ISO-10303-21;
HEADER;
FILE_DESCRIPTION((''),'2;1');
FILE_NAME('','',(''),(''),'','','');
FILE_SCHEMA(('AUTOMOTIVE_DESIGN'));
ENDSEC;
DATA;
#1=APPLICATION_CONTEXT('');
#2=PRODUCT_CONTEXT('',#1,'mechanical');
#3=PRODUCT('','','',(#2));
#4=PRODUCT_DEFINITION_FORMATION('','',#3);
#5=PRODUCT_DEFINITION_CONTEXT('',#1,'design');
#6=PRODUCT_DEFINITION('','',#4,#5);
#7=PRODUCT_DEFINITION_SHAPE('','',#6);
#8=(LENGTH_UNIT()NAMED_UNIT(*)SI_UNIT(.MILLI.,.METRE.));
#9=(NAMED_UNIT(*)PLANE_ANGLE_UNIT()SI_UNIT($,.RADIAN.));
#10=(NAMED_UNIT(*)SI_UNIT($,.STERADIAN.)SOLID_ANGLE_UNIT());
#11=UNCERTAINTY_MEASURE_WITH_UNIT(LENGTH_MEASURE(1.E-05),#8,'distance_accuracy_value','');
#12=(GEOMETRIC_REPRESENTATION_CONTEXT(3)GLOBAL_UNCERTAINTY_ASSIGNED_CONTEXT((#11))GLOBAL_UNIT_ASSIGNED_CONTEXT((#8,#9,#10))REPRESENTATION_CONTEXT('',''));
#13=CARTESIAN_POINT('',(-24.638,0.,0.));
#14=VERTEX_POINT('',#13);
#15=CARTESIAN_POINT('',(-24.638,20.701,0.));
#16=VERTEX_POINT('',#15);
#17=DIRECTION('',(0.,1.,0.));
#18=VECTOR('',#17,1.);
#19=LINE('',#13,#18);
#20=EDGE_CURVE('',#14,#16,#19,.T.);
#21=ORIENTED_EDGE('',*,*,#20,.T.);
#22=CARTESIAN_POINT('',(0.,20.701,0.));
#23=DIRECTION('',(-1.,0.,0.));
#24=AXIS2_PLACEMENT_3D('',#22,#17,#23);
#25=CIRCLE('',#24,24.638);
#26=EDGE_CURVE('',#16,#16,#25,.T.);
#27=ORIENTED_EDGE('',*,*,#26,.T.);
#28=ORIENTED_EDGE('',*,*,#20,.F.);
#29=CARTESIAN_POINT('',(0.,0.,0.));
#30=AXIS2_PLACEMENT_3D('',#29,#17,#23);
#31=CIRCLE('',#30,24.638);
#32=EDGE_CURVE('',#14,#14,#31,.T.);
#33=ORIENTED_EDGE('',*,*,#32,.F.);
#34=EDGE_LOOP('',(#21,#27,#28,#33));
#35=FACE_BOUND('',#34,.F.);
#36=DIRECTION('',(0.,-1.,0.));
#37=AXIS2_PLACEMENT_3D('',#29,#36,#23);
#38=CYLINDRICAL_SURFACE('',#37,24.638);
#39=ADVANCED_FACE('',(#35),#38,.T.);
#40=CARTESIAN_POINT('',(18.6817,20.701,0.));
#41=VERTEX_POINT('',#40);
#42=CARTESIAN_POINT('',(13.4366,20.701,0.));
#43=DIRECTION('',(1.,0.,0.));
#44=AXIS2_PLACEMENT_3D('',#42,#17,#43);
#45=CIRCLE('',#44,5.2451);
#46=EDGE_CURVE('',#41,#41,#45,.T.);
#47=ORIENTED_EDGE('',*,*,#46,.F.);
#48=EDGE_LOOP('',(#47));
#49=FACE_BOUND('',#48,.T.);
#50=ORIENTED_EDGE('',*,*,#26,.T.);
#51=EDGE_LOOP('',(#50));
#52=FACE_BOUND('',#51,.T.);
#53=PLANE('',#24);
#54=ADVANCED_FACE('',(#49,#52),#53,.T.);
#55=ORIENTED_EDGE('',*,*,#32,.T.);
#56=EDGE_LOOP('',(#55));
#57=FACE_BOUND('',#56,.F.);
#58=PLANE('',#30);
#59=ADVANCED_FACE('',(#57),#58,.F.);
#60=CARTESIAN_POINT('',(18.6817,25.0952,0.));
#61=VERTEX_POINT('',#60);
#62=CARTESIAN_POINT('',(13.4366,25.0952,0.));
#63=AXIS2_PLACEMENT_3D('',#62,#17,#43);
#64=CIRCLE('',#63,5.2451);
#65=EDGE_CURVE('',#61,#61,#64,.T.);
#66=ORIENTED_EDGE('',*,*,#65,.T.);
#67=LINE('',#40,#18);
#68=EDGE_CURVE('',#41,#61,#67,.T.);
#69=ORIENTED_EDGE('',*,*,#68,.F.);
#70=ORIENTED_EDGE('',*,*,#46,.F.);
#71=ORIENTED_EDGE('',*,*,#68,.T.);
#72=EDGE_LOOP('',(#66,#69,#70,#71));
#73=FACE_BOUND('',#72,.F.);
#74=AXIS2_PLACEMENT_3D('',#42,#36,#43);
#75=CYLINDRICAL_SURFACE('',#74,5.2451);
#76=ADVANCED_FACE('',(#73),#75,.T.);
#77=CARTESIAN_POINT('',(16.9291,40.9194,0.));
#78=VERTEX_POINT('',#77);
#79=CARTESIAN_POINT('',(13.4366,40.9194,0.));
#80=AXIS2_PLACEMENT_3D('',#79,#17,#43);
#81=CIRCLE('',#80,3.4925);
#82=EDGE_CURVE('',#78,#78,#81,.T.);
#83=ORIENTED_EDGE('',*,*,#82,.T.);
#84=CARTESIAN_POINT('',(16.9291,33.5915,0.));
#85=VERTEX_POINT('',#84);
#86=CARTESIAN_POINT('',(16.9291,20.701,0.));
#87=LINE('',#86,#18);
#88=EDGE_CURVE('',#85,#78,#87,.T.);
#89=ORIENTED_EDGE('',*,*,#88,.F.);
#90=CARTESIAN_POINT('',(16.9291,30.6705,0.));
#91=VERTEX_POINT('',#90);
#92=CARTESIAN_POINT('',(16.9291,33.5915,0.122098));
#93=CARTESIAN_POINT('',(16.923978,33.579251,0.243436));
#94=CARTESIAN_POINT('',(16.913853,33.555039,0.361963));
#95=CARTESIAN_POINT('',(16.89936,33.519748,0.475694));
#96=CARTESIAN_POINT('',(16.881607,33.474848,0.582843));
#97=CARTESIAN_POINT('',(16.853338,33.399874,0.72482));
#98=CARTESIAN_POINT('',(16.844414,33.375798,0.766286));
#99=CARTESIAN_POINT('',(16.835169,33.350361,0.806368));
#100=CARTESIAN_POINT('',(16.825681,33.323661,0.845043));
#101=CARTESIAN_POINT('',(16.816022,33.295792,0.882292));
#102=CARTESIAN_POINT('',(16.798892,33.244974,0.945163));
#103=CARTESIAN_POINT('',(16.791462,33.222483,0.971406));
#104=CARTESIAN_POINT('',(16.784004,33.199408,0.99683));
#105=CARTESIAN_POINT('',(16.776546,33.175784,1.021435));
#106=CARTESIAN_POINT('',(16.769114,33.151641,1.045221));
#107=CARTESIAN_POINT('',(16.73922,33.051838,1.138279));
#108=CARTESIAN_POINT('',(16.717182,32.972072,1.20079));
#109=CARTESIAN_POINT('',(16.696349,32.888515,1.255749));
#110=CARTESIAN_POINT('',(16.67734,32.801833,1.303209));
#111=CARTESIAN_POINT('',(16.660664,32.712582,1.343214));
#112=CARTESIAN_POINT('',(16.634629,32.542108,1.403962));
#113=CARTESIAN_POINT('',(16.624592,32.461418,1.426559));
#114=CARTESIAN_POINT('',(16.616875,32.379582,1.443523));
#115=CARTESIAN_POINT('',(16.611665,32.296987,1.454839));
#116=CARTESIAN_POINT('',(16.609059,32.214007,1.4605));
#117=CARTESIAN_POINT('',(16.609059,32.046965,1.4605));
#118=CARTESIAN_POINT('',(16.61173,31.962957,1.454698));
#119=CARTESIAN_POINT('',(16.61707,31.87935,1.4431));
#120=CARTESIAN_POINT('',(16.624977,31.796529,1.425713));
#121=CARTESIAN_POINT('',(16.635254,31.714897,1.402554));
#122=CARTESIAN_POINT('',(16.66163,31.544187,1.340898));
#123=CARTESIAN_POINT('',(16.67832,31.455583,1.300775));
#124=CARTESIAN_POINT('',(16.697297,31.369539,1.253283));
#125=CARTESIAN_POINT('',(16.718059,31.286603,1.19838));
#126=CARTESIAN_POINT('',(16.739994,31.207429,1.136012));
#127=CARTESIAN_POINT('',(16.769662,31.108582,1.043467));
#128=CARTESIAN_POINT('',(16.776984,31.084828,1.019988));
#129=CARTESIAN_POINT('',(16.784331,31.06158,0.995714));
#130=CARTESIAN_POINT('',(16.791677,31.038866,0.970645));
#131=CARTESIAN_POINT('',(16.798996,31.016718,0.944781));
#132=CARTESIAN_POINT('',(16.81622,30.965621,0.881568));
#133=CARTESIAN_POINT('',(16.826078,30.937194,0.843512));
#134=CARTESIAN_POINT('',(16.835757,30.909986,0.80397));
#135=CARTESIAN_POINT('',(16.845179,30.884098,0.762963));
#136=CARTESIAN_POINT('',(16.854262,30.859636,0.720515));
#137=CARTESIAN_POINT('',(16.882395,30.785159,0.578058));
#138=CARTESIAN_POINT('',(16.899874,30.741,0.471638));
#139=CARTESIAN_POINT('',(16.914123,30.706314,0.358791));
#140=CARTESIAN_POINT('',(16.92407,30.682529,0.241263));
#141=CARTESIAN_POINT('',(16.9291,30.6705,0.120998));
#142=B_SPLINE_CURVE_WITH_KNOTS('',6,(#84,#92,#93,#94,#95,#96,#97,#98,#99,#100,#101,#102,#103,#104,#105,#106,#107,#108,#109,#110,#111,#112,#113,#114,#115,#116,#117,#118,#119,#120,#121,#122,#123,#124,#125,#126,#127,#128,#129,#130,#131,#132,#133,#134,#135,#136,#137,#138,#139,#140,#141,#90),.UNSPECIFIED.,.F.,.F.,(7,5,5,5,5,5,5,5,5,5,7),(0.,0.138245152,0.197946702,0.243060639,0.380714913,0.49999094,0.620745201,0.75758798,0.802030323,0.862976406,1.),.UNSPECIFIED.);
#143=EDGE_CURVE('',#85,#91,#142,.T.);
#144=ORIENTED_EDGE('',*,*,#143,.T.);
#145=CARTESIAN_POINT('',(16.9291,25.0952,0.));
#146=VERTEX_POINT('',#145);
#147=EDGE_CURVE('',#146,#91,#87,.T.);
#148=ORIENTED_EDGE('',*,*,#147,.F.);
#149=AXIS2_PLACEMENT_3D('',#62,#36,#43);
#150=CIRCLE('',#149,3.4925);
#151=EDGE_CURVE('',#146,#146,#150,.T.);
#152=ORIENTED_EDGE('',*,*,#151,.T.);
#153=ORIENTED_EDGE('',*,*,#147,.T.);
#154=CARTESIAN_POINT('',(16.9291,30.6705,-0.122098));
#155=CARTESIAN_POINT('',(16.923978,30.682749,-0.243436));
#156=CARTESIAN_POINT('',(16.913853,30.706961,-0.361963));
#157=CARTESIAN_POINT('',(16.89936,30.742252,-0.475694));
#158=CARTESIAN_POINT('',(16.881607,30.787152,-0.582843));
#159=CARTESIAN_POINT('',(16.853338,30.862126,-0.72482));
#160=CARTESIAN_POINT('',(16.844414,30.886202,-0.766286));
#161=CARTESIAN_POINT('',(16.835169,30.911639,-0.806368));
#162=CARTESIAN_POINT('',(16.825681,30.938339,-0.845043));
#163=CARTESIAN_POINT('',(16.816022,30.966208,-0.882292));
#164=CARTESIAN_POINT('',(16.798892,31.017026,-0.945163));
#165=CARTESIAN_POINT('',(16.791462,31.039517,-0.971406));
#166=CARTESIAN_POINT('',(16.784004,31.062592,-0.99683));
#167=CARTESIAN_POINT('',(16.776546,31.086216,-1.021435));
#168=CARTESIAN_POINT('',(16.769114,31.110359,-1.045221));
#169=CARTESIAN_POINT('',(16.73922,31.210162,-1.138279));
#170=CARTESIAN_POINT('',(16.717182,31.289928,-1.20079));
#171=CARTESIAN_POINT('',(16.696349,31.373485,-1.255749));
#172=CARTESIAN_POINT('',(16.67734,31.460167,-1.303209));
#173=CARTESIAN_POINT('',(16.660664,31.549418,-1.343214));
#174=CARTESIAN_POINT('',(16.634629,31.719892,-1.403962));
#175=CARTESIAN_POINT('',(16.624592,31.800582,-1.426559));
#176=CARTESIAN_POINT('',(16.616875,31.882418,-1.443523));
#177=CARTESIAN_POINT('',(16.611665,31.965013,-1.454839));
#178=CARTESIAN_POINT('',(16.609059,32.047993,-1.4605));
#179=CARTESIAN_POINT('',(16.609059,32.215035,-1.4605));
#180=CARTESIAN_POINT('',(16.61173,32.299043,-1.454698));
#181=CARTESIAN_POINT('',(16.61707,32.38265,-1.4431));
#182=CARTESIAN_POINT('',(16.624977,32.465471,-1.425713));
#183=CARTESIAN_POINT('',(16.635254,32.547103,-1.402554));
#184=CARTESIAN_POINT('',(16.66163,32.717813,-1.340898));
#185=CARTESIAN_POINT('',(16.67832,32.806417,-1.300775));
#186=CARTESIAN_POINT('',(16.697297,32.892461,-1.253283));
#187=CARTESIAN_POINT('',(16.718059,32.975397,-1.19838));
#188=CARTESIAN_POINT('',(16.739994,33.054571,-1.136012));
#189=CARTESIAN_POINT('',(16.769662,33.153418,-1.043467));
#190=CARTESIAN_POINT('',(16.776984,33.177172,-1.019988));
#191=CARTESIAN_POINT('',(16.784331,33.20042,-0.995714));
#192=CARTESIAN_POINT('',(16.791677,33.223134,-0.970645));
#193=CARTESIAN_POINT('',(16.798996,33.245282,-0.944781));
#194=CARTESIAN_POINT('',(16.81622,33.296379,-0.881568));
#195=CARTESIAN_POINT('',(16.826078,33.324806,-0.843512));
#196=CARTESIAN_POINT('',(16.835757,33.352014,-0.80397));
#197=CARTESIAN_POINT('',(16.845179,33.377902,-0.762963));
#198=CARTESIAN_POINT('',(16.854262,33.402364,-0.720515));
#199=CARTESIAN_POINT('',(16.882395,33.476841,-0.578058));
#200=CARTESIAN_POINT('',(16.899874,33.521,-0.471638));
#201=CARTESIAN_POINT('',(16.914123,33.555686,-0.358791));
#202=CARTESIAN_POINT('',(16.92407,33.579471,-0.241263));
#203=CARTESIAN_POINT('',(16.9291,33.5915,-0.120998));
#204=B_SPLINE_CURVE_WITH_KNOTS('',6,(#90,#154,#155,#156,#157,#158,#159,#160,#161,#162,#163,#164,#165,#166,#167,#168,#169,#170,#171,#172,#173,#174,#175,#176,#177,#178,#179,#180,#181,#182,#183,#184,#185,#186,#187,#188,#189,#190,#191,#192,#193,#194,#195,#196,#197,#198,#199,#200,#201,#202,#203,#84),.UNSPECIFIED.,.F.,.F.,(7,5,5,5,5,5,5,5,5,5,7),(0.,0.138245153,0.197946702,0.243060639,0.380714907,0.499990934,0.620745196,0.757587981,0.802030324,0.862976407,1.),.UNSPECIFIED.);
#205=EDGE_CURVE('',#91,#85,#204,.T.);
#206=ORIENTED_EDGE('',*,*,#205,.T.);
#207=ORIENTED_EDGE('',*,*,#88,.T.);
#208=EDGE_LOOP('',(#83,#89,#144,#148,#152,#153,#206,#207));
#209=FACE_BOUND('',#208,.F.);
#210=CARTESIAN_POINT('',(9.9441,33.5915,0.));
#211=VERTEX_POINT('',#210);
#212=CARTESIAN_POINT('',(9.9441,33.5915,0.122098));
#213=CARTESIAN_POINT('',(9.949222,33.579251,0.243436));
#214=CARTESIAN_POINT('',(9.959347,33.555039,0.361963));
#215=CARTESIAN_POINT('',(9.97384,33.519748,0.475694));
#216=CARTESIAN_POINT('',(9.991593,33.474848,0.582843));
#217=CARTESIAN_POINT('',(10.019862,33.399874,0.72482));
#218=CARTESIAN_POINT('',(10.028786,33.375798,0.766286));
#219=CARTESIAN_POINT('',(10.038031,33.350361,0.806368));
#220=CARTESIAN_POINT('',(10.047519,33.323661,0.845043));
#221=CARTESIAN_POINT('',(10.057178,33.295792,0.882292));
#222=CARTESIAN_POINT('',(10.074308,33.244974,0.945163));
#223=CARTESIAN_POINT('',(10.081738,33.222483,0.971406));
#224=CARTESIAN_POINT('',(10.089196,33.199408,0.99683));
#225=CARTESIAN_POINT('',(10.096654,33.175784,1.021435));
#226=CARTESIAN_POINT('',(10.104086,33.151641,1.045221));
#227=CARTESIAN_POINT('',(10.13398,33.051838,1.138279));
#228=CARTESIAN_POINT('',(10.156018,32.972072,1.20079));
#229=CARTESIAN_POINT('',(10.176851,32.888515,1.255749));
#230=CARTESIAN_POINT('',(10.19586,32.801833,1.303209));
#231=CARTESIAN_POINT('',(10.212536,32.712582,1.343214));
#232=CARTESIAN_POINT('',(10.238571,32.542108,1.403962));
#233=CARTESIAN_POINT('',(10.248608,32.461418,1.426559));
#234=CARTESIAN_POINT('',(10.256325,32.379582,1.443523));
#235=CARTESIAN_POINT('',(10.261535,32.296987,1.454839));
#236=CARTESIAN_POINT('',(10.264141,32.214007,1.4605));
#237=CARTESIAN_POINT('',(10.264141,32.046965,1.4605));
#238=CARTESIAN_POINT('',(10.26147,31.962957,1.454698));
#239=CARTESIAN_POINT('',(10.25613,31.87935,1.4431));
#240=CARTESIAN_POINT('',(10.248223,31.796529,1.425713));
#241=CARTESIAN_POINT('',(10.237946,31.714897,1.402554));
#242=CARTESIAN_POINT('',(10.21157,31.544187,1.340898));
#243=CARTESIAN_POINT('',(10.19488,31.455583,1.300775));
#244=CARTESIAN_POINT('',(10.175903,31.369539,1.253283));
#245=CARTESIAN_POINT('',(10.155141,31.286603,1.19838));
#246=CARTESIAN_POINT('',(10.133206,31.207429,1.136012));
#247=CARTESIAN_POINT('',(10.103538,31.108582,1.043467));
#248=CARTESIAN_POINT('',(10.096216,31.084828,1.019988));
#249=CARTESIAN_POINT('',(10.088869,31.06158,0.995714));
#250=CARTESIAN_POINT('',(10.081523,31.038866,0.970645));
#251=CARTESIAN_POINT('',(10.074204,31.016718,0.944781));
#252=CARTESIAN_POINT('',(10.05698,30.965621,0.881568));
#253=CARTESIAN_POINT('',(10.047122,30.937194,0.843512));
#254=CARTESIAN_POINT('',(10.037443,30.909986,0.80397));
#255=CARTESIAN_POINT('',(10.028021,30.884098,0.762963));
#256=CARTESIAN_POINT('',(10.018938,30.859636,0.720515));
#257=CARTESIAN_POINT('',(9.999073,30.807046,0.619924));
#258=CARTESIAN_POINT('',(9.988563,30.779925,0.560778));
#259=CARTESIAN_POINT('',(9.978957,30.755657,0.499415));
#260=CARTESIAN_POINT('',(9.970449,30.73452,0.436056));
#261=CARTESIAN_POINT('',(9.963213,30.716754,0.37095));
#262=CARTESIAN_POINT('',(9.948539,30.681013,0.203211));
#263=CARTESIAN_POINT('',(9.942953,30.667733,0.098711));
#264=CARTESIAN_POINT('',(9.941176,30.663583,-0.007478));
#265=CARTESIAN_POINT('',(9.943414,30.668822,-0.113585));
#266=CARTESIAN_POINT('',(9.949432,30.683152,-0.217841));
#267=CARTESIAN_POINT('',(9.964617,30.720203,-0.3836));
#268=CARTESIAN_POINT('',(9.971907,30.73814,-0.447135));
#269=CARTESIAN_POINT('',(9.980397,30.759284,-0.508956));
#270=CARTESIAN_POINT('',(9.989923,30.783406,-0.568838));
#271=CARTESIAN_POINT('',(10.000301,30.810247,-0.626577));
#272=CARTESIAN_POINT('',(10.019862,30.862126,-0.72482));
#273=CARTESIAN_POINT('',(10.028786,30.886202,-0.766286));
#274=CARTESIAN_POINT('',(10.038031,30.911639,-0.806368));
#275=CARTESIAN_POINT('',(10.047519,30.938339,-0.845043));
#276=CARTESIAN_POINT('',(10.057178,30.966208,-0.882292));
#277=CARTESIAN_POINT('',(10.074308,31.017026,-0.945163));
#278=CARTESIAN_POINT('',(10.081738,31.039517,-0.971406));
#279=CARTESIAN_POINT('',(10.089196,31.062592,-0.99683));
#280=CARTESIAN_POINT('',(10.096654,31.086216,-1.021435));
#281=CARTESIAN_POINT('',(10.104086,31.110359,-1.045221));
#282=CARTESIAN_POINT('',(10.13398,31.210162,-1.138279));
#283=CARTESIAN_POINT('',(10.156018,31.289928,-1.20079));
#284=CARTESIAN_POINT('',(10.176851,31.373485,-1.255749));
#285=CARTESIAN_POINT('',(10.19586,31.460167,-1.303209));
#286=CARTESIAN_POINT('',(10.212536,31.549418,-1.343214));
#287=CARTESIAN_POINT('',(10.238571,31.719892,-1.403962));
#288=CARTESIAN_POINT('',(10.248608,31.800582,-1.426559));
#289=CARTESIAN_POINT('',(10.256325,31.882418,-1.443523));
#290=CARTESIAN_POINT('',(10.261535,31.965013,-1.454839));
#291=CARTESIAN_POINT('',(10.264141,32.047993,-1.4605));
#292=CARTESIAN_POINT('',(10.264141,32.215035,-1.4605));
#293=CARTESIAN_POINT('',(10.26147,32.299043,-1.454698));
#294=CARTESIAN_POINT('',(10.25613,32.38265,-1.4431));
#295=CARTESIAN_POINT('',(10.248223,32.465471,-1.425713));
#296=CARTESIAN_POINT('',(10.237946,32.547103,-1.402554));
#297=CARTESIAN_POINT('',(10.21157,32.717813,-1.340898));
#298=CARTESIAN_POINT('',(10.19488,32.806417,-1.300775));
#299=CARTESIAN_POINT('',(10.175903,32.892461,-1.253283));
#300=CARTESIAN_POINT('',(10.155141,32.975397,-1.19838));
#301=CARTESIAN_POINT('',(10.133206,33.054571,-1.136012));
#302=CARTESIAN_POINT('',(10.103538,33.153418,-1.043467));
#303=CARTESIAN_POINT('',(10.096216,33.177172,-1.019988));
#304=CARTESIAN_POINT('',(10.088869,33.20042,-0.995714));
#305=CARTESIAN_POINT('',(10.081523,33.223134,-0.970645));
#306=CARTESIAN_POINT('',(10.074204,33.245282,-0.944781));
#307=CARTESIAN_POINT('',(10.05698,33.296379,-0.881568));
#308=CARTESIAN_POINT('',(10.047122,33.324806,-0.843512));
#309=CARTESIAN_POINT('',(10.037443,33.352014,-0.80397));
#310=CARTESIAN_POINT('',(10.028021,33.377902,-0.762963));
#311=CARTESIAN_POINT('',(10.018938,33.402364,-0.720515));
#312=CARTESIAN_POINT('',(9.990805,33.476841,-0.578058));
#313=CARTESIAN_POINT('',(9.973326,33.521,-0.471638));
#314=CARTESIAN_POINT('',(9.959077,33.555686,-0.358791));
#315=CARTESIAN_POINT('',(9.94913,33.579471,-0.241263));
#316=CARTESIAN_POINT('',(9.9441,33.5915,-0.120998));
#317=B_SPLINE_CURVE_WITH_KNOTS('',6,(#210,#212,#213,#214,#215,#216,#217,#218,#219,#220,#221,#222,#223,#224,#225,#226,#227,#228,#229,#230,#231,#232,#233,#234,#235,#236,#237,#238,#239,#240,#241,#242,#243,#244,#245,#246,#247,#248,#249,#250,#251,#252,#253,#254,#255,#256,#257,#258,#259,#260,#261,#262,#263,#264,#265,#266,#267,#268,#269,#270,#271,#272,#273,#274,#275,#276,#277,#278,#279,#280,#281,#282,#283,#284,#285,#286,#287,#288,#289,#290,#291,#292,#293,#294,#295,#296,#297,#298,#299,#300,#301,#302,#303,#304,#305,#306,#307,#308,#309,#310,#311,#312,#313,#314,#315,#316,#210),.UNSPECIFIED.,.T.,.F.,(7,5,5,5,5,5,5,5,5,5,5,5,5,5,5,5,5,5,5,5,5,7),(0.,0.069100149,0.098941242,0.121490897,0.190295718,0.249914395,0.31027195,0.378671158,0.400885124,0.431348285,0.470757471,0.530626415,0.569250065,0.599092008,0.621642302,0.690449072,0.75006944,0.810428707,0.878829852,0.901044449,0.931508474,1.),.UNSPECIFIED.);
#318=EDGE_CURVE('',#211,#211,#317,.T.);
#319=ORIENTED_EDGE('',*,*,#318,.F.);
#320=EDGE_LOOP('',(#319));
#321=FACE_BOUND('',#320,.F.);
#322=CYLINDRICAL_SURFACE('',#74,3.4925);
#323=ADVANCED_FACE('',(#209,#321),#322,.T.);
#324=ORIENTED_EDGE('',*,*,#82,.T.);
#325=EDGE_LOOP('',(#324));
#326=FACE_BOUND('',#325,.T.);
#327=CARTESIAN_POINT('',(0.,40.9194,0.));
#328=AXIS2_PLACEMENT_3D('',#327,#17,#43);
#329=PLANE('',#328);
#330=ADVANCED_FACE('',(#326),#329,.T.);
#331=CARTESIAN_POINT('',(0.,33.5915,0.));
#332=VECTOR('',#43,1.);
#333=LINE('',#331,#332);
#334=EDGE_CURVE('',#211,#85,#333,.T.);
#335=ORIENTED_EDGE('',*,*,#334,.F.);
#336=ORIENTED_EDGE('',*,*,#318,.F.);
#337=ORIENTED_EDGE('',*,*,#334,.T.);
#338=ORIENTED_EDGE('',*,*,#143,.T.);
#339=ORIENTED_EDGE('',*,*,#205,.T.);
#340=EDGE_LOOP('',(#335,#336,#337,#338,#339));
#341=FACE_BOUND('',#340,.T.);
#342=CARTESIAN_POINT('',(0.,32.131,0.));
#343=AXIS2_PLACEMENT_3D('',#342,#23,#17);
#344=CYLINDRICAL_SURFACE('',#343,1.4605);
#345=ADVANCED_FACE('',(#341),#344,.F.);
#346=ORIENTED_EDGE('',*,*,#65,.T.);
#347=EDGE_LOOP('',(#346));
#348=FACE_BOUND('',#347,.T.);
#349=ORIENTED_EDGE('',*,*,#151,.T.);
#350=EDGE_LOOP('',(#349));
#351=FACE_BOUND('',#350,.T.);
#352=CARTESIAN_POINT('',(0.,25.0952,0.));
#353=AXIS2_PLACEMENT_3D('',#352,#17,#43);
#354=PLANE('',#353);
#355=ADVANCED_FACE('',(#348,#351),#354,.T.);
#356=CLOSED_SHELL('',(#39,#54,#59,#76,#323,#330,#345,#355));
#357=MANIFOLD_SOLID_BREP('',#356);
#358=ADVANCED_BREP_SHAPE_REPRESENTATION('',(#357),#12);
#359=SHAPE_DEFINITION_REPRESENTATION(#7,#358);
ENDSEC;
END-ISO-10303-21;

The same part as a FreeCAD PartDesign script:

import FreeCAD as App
import Part
import Sketcher
from FreeCAD import Vector
Q = App.Units.Quantity

doc = App.newDocument("Part")
body = doc.addObject("PartDesign::Body", "Body")

sketch1 = body.newObject("Sketcher::SketchObject", "Sketch")
sketch1.AttachmentSupport = (doc.getObject("XZ_Plane"), [""])
sketch1.MapMode = "FlatFace"
sketch1.addGeometry(Part.Circle(Vector(0, 0, 0), Vector(0, 0, 1), 25), False)
sketch1.addConstraint([
    Sketcher.Constraint("Coincident", 0, 3, -1, 1),
    Sketcher.Constraint("Diameter", 0, Q("1.94 in")),
])
pad1 = body.newObject("PartDesign::Pad", "Pad")
pad1.Profile = sketch1
pad1.Length = Q("0.815 in")
pad1.Reversed = True

sketch2 = body.newObject("Sketcher::SketchObject", "Sketch001")
sketch2.AttachmentSupport = (doc.getObject("XZ_Plane"), [""])
sketch2.MapMode = "FlatFace"
sketch2.AttachmentOffset = App.Placement(Vector(0, 0, -0.815 * 25.4), App.Rotation())
sketch2.addGeometry(Part.Circle(Vector(13.4, 0, 0), Vector(0, 0, 1), 3.5), False)
sketch2.addConstraint([
    Sketcher.Constraint("PointOnObject", 0, 3, -1),
    Sketcher.Constraint("Diameter", 0, Q("0.275 in")),
    Sketcher.Constraint("DistanceX", -1, 1, 0, 3, Q("0.529 in")),
])
pad2 = body.newObject("PartDesign::Pad", "Pad001")
pad2.Profile = sketch2
pad2.Length = Q("0.796 in")
pad2.Reversed = True

sketch3 = body.newObject("Sketcher::SketchObject", "Sketch002")
sketch3.AttachmentSupport = (doc.getObject("XZ_Plane"), [""])
sketch3.MapMode = "FlatFace"
sketch3.AttachmentOffset = App.Placement(Vector(0, 0, -0.815 * 25.4), App.Rotation())
sketch3.addGeometry(Part.Circle(Vector(13, 0, 0), Vector(0, 0, 1), 5), False)
sketch3.addConstraint([
    Sketcher.Constraint("PointOnObject", 0, 3, -1),
    Sketcher.Constraint("Diameter", 0, Q("0.413 in")),
    Sketcher.Constraint("DistanceX", -1, 1, 0, 3, Q("0.529 in")),
])
pad3 = body.newObject("PartDesign::Pad", "Pad002")
pad3.Profile = sketch3
pad3.Length = Q("0.173 in")
pad3.Reversed = True

sketch4 = body.newObject("Sketcher::SketchObject", "Sketch003")
sketch4.AttachmentSupport = (doc.getObject("YZ_Plane"), [""])
sketch4.MapMode = "FlatFace"
sketch4.addGeometry(Part.Circle(Vector(32.1, 0, 0), Vector(0, 0, 1), 1.5), False)
sketch4.addConstraint([
    Sketcher.Constraint("PointOnObject", 0, 3, -1),
    Sketcher.Constraint("Diameter", 0, Q("0.115 in")),
    Sketcher.Constraint("DistanceX", -1, 1, 0, 3, Q("1.265 in")),
])
pocket1 = body.newObject("PartDesign::Pocket", "Pocket")
pocket1.Profile = sketch4
pocket1.Type = "ThroughAll"
pocket1.Reversed = True

doc.recompute()
